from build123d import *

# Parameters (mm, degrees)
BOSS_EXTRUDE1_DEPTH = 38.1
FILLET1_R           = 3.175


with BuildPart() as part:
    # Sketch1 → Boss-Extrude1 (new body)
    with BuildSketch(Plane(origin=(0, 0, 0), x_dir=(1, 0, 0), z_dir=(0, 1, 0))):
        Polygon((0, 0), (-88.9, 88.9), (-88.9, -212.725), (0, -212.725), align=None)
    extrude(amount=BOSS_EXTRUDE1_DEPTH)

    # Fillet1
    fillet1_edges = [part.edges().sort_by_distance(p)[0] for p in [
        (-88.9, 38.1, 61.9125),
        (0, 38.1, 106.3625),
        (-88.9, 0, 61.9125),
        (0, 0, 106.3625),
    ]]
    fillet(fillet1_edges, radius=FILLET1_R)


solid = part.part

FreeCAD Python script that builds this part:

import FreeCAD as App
import Part
import Sketcher
Q = App.Units.Quantity


def edges_at(feature, points):
    """Names of the edges that pass closest to the given points."""
    edges = feature.Shape.Edges
    near = lambda p: min(range(len(edges)), key=lambda i: edges[i].distToShape(Part.Vertex(*p))[0])
    return sorted({f"Edge{near(p) + 1}" for p in points})

doc = App.newDocument("Part")
params = doc.addObject("Spreadsheet::Sheet", "Params")
for row, (alias, value) in enumerate([
    ("sketch1_width", "3.5 in"),
    ("sketch1_height", "11.875 in"),
    ("pad1_length", "1.5 in"),
    ("fillet_radius", "0.125 in"),
], start=1):
    params.set(f"A{row}", alias)
    params.set(f"B{row}", "=" + value)
    params.setAlias(f"B{row}", alias)

body = doc.addObject("PartDesign::Body", "Body")

# Sketch on XZ plane
sketch1 = body.newObject("Sketcher::SketchObject", "Sketch")
sketch1.AttachmentSupport = (doc.getObject("XZ_Plane"), [""])
sketch1.MapMode = "FlatFace"
sketch1.addGeometry([
    Part.LineSegment(App.Vector(0, 0, 0), App.Vector(-88.9, -88.9, 0)),
    Part.LineSegment(App.Vector(-88.9, -88.9, 0), App.Vector(-88.9, 212.725, 0)),
    Part.LineSegment(App.Vector(-88.9, 212.725, 0), App.Vector(0, 212.725, 0)),
    Part.LineSegment(App.Vector(0, 212.725, 0), App.Vector(0, 0, 0)),
], False)
sketch1.addConstraint([
    Sketcher.Constraint("Coincident", 0, 2, 1, 1),
    Sketcher.Constraint("Coincident", 1, 2, 2, 1),
    Sketcher.Constraint("Coincident", 2, 2, 3, 1),
    Sketcher.Constraint("Coincident", 3, 2, 0, 1),
    Sketcher.Constraint("Vertical", 1),
    Sketcher.Constraint("Horizontal", 2),
    Sketcher.Constraint("Vertical", 3),
    Sketcher.Constraint("Coincident", 3, 2, -1, 1),
    Sketcher.Constraint("DistanceX", 2, 1, 2, 2, Q("3.5 in")),
    Sketcher.Constraint("Angle", 0, Q("-135 deg")),
    Sketcher.Constraint("DistanceY", 1, 1, 1, 2, Q("11.875 in")),
])
sketch1.setExpression("Constraints[8]", "Params.sketch1_width")
sketch1.setExpression("Constraints[10]", "Params.sketch1_height")
pad1 = body.newObject("PartDesign::Pad", "Pad")
pad1.Profile = sketch1
pad1.setExpression("Length", "Params.pad1_length")
pad1.Reversed = True
doc.recompute()

fillet = body.newObject("PartDesign::Fillet", "Fillet")
fillet.Base = (pad1, edges_at(pad1, [
    (-88.9, 38.1, 61.913),
    (0, 38.1, 106.362),
    (-88.9, 0, 61.913),
    (0, 0, 106.362),
]))
fillet.setExpression("Radius", "Params.fillet_radius")

doc.recompute()
